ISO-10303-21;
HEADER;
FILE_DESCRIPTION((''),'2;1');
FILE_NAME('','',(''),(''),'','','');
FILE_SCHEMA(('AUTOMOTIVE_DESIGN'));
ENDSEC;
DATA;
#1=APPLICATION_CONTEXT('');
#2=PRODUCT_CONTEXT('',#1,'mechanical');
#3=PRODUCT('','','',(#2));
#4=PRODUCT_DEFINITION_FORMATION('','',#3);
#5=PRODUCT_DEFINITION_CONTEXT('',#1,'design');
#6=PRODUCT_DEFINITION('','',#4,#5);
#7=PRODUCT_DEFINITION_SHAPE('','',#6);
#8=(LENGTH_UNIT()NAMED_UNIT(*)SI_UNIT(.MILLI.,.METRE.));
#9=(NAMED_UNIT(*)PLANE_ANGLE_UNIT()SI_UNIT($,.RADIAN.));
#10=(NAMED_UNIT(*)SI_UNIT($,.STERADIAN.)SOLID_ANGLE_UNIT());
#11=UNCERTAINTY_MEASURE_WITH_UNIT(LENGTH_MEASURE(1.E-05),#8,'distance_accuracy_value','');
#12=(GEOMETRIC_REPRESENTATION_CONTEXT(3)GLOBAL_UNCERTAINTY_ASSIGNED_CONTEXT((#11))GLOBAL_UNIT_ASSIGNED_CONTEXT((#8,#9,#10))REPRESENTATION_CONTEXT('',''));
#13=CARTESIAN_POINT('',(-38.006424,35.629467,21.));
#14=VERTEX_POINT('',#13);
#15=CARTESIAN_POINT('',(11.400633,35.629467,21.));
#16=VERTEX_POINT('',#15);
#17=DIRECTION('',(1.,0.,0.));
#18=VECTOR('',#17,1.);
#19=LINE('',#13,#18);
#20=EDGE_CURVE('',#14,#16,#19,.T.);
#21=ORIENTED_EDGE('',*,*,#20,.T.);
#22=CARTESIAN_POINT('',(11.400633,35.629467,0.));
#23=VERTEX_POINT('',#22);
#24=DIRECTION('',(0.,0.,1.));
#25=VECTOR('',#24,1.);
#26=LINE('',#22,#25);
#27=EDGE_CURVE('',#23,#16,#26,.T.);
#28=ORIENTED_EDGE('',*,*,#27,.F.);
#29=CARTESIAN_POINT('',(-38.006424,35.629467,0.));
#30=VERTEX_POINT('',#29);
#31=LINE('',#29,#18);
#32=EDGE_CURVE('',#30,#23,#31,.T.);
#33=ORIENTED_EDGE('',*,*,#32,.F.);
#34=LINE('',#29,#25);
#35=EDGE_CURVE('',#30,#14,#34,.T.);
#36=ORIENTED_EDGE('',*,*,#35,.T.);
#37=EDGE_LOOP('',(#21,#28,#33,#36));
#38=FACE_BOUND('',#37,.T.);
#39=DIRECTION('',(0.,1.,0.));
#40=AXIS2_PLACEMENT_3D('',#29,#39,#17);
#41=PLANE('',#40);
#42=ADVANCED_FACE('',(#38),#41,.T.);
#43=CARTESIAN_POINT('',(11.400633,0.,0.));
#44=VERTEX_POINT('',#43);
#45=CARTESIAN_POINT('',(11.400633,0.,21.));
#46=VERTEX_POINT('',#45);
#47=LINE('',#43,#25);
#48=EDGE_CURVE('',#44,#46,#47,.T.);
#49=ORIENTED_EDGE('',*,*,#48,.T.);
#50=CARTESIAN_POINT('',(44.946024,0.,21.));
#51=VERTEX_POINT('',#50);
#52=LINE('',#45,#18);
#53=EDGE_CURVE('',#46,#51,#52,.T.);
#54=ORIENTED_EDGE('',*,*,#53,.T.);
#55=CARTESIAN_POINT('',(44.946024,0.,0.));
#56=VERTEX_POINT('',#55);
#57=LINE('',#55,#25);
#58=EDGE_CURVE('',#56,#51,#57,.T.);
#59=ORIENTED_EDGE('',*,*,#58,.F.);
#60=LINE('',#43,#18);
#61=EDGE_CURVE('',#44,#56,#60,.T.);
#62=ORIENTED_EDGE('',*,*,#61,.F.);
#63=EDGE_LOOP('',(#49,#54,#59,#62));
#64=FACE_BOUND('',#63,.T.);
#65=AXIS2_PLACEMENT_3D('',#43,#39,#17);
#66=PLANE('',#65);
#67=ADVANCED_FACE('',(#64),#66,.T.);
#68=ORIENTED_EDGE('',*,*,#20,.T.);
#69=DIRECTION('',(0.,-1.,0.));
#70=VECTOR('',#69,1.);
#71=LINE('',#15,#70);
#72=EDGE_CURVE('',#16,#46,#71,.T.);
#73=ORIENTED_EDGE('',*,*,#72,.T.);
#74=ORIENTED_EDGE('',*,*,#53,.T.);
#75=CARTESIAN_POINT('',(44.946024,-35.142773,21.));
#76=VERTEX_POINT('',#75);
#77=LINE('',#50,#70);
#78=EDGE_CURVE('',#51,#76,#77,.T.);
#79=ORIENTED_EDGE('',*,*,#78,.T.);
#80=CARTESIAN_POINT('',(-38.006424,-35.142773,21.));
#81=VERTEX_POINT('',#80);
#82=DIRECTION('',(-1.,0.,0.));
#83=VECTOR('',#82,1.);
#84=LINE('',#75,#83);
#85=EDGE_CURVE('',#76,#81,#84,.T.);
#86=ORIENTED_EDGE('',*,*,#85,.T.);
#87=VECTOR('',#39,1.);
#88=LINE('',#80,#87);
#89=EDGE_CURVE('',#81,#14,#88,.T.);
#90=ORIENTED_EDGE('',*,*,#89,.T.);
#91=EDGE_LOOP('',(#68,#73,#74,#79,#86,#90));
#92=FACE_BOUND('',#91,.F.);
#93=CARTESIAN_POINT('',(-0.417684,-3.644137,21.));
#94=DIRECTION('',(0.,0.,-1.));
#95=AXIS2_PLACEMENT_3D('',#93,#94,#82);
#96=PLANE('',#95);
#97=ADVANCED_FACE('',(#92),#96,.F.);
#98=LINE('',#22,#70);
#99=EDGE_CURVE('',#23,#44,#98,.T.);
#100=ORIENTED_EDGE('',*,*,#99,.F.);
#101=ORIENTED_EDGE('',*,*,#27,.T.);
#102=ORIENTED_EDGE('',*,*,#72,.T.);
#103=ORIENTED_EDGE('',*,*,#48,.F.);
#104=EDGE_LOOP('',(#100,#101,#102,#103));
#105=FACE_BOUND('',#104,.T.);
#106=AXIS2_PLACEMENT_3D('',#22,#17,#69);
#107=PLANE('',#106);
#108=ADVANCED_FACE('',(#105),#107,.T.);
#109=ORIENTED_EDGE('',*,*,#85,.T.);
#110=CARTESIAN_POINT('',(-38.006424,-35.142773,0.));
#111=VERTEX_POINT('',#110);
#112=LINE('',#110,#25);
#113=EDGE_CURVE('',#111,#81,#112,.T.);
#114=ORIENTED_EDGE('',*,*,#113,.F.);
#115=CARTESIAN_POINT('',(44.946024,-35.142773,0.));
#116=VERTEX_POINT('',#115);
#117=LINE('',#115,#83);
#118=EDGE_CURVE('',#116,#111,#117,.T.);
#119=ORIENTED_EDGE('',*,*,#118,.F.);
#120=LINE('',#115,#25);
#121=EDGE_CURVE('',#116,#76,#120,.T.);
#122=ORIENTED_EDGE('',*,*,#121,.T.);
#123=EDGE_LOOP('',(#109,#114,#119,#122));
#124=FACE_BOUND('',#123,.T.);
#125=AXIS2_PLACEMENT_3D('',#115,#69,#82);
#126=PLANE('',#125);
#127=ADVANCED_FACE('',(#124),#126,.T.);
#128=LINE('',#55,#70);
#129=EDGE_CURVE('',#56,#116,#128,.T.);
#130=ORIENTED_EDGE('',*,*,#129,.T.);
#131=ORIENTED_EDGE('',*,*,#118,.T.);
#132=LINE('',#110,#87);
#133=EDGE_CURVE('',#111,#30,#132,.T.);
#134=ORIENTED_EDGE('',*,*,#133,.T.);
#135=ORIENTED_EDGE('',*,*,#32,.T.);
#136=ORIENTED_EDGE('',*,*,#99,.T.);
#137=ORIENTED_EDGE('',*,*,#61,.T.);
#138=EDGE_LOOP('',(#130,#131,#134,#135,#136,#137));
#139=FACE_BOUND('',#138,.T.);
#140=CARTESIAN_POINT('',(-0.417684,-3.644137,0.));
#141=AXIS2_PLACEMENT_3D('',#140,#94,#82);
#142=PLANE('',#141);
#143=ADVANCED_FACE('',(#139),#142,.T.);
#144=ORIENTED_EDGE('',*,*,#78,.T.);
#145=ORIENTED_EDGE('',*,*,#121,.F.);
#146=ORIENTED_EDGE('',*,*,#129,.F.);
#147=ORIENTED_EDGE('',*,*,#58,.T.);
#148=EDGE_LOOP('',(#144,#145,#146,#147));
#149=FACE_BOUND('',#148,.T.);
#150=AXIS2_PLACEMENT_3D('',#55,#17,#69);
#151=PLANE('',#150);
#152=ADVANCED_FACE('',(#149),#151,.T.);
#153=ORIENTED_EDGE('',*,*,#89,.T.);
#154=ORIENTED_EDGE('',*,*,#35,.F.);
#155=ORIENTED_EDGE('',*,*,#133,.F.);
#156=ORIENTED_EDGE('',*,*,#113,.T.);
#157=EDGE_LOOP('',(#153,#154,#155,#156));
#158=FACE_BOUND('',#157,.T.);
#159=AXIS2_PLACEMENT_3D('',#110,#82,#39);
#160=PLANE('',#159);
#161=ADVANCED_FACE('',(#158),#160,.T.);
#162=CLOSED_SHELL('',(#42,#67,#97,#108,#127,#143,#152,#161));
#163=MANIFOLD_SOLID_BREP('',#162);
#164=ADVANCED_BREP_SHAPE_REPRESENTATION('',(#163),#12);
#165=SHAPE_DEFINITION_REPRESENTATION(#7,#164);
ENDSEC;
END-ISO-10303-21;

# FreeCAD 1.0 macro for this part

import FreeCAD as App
import Part
import Sketcher

V = App.Vector
Q = App.Units.Quantity

doc = App.newDocument("Part")
params = doc.addObject("Spreadsheet::Sheet", "Params")
for row, (alias, value) in enumerate([
    ("pad1_length", "21 mm"),
], start=1):
    params.set(f"A{row}", alias)
    params.set(f"B{row}", "=" + value)
    params.setAlias(f"B{row}", alias)

body = doc.addObject("PartDesign::Body", "Body")

sketch1 = body.newObject("Sketcher::SketchObject", "Sketch")
sketch1.AttachmentSupport = (doc.getObject("XY_Plane"), [""])
sketch1.MapMode = "FlatFace"
sketch1.addGeometry([
    Part.LineSegment(V(11.400633, 35.629467, 0), V(-38.006424, 35.629467, 0)),
    Part.LineSegment(V(-38.006424, 35.629467, 0), V(-38.006424, -35.142773, 0)),
    Part.LineSegment(V(-38.006424, -35.142773, 0), V(44.946024, -35.142773, 0)),
    Part.LineSegment(V(44.946024, -35.142773, 0), V(44.946024, 0, 0)),
    Part.LineSegment(V(44.946024, 0, 0), V(11.400633, 0, 0)),
    Part.LineSegment(V(11.400633, 0, 0), V(11.400633, 35.629467, 0)),
], False)
sketch1.addConstraint([
    Sketcher.Constraint("Coincident", 0, 2, 1, 1),
    Sketcher.Constraint("Coincident", 1, 2, 2, 1),
    Sketcher.Constraint("Coincident", 2, 2, 3, 1),
    Sketcher.Constraint("Coincident", 3, 2, 4, 1),
    Sketcher.Constraint("Coincident", 4, 2, 5, 1),
    Sketcher.Constraint("Coincident", 5, 2, 0, 1),
    Sketcher.Constraint("Horizontal", 0),
    Sketcher.Constraint("Vertical", 1),
    Sketcher.Constraint("Horizontal", 2),
    Sketcher.Constraint("Vertical", 3),
    Sketcher.Constraint("Horizontal", 4),
    Sketcher.Constraint("Vertical", 5),
    Sketcher.Constraint("PointOnObject", 3, 2, -1),
    Sketcher.Constraint("DistanceX", 2, 1, 2, 2, Q("82.952448 mm")),
    Sketcher.Constraint("DistanceX", 4, 2, 4, 1, Q("33.545391 mm")),
    Sketcher.Constraint("DistanceY", 1, 2, 1, 1, Q("70.77224 mm")),
    Sketcher.Constraint("DistanceY", 3, 1, 3, 2, Q("35.142773 mm")),
    Sketcher.Constraint("DistanceX", 0, 2, -1, 1, Q("38.006424 mm")),
])
pad1 = body.newObject("PartDesign::Pad", "Pad")
pad1.Profile = sketch1
pad1.setExpression("Length", "Params.pad1_length")

doc.recompute()
